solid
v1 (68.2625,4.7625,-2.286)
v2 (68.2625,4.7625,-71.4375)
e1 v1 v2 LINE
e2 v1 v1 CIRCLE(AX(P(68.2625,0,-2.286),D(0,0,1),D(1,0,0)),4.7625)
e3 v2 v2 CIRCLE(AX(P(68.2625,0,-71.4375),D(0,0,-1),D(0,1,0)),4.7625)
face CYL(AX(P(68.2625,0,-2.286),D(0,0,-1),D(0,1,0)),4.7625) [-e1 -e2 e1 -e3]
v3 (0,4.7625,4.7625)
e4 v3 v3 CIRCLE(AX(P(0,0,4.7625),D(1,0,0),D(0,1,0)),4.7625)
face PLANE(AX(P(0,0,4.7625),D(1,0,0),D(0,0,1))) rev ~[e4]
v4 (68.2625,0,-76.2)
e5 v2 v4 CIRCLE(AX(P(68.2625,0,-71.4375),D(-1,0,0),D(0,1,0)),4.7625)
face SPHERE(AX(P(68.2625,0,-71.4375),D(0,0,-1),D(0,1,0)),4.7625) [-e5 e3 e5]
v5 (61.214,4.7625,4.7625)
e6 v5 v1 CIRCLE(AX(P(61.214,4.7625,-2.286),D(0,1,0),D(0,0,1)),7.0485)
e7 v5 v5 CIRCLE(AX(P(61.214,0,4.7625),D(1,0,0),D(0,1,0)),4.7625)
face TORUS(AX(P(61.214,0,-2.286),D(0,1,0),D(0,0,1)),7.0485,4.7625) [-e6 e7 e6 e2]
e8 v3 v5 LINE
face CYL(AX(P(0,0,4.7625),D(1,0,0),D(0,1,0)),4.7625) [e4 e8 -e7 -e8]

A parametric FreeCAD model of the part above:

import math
import FreeCAD as App
import Part
import Sketcher
Q = App.Units.Quantity


def edges_at(feature, points):
    """Names of the edges that pass closest to the given points."""
    edges = feature.Shape.Edges
    near = lambda p: min(range(len(edges)), key=lambda i: edges[i].distToShape(Part.Vertex(*p))[0])
    return sorted({f"Edge{near(p) + 1}" for p in points})

doc = App.newDocument("Part")
params = doc.addObject("Spreadsheet::Sheet", "Params")
for row, (alias, value) in enumerate([
    ("sketch1_diameter", "0.375 in"),
    ("sketch2_width", "2.41 in"),
    ("sketch2_height", "2.91 in"),
    ("fillet_radius", "0.1875 in"),
], start=1):
    params.set(f"A{row}", alias)
    params.set(f"B{row}", "=" + value)
    params.setAlias(f"B{row}", alias)

body = doc.addObject("PartDesign::Body", "Body")

# Sketch on YZ plane
sketch1 = body.newObject("Sketcher::SketchObject", "Sketch")
sketch1.AttachmentSupport = (doc.getObject("YZ_Plane"), [""])
sketch1.MapMode = "FlatFace"
sketch1.addGeometry(Part.Circle(App.Vector(0, 4.8, 0), App.Vector(0, 0, 1), 4.8), False)
sketch1.addConstraint([
    Sketcher.Constraint("PointOnObject", 0, 3, -2),
    Sketcher.Constraint("Diameter", 0, Q("0.375 in")),
    Sketcher.Constraint("DistanceY", -1, 1, 0, 3, Q("0.1875 in")),
])
sketch1.setExpression("Constraints[1]", "Params.sketch1_diameter")

# Sketch on XZ plane
sketch2 = body.newObject("Sketcher::SketchObject", "Sketch001")
sketch2.AttachmentSupport = (doc.getObject("XZ_Plane"), [""])
sketch2.MapMode = "FlatFace"
sketch2.addGeometry([
    Part.LineSegment(App.Vector(0, 5, 0), App.Vector(61, 5, 0)),
    Part.ArcOfCircle(Part.Circle(App.Vector(61, -2, 0), App.Vector(0, 0, 1), 7), math.radians(0), math.radians(90)),
    Part.LineSegment(App.Vector(68, -2, 0), App.Vector(68, -76, 0)),
], False)
sketch2.addConstraint([
    Sketcher.Constraint("Tangent", 0, 2, 1, 2),
    Sketcher.Constraint("Tangent", 1, 1, 2, 1),
    Sketcher.Constraint("Horizontal", 0),
    Sketcher.Constraint("Vertical", 2),
    Sketcher.Constraint("PointOnObject", 0, 1, -2),
    Sketcher.Constraint("DistanceY", 2, 2, -1, 1, Q("3 in")),
    Sketcher.Constraint("DistanceX", 0, 1, 0, 2, Q("2.41 in")),
    Sketcher.Constraint("DistanceY", 2, 2, 2, 1, Q("2.91 in")),
    Sketcher.Constraint("Radius", 1, Q("0.2775 in")),
])
sketch2.setExpression("Constraints[6]", "Params.sketch2_width")
sketch2.setExpression("Constraints[7]", "Params.sketch2_height")
doc.recompute()

additivepipe = body.newObject("PartDesign::AdditivePipe", "AdditivePipe")
additivepipe.Profile = sketch1
additivepipe.Spine = (sketch2, ["Edge1", "Edge2", "Edge3"])
doc.recompute()

fillet = body.newObject("PartDesign::Fillet", "Fillet")
fillet.Base = (additivepipe, edges_at(additivepipe, [(68.263, -4.763, -76.2)]))
fillet.setExpression("Radius", "Params.fillet_radius")

doc.recompute()
